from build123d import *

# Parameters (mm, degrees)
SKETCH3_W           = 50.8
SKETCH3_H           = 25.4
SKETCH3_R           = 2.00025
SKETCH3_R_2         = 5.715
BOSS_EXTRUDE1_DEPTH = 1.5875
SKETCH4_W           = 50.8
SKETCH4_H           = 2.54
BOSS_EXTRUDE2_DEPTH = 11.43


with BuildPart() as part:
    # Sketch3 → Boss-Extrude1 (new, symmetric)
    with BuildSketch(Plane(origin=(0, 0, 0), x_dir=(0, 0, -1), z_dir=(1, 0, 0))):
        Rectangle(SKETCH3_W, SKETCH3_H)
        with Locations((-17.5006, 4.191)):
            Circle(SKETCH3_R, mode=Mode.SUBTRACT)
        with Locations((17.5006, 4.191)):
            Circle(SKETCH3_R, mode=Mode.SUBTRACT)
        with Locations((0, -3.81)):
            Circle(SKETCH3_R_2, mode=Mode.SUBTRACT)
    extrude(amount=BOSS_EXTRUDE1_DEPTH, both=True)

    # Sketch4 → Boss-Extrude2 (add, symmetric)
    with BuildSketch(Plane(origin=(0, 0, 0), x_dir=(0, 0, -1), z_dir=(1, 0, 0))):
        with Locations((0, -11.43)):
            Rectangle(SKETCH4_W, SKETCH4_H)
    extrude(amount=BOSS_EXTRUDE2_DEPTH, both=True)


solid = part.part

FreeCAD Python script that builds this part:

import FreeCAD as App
import Part
import Sketcher
from FreeCAD import Vector
Q = App.Units.Quantity

doc = App.newDocument("Part")
body = doc.addObject("PartDesign::Body", "Body")

# Sketch on YZ plane
sketch1 = doc.addObject("Sketcher::SketchObject", "Sketch")
body.addObject(sketch1)
sketch1.AttachmentSupport = (doc.YZ_Plane, [""])
sketch1.MapMode = "FlatFace"
sketch1.addGeometry([
    Part.LineSegment(Vector(12.7, 25.4, 0), Vector(-12.7, 25.4, 0)),  # 0
    Part.LineSegment(Vector(-12.7, 25.4, 0), Vector(-12.7, -25.4, 0)),  # 1
    Part.LineSegment(Vector(-12.7, -25.4, 0), Vector(12.7, -25.4, 0)),  # 2
    Part.LineSegment(Vector(12.7, -25.4, 0), Vector(12.7, 25.4, 0)),  # 3
    Part.Circle(Vector(-3.81, 0, 0), Vector(0, 0, 1), 5.715),  # 4
    Part.Circle(Vector(4.191, 17.5006, 0), Vector(0, 0, 1), 2.00025),  # 5
    Part.Circle(Vector(4.191, -17.5006, 0), Vector(0, 0, 1), 2.00025),  # 6
], False)
sketch1.addConstraint([
    Sketcher.Constraint("Coincident", 0, 2, 1, 1),
    Sketcher.Constraint("Coincident", 1, 2, 2, 1),
    Sketcher.Constraint("Coincident", 2, 2, 3, 1),
    Sketcher.Constraint("Coincident", 3, 2, 0, 1),
    Sketcher.Constraint("Horizontal", 0),
    Sketcher.Constraint("Vertical", 1),
    Sketcher.Constraint("Horizontal", 2),
    Sketcher.Constraint("Vertical", 3),
    Sketcher.Constraint("Equal", 5, 6),
    Sketcher.Constraint("Symmetric", 0, 2, 2, 2, -1, 1),
    Sketcher.Constraint("Symmetric", 5, 3, 6, 3, -1),
    Sketcher.Constraint("PointOnObject", 4, 3, -1),
    Sketcher.Constraint("Diameter", 4, Q("0.45 in")),
    Sketcher.Constraint("DistanceX", 0, 2, 0, 1, Q("1 in")),
    Sketcher.Constraint("DistanceY", 1, 2, 1, 1, Q("2 in")),
    Sketcher.Constraint("Diameter", 5, Q("0.1575 in")),
    Sketcher.Constraint("DistanceX", 4, 3, -1, 1, Q("0.15 in")),
    Sketcher.Constraint("DistanceX", -1, 1, 5, 3, Q("0.165 in")),
    Sketcher.Constraint("DistanceY", -1, 1, 5, 3, Q("0.689 in")),
])
pad1 = doc.addObject("PartDesign::Pad", "Pad")
body.addObject(pad1)
pad1.Profile = sketch1
pad1.Length = Q("0.125 in")
pad1.Midplane = True

# Sketch on YZ plane
sketch2 = doc.addObject("Sketcher::SketchObject", "Sketch001")
body.addObject(sketch2)
sketch2.AttachmentSupport = (doc.YZ_Plane, [""])
sketch2.MapMode = "FlatFace"
sketch2.addGeometry([
    Part.LineSegment(Vector(-10.16, 25.4, 0), Vector(-12.7, 25.4, 0)),
    Part.LineSegment(Vector(-12.7, 25.4, 0), Vector(-12.7, -25.4, 0)),
    Part.LineSegment(Vector(-12.7, -25.4, 0), Vector(-10.16, -25.4, 0)),
    Part.LineSegment(Vector(-10.16, -25.4, 0), Vector(-10.16, 25.4, 0)),
], False)
sketch2.addConstraint([
    Sketcher.Constraint("Coincident", 0, 2, 1, 1),
    Sketcher.Constraint("Coincident", 1, 2, 2, 1),
    Sketcher.Constraint("Coincident", 2, 2, 3, 1),
    Sketcher.Constraint("Coincident", 3, 2, 0, 1),
    Sketcher.Constraint("Horizontal", 0),
    Sketcher.Constraint("Vertical", 1),
    Sketcher.Constraint("Horizontal", 2),
    Sketcher.Constraint("Vertical", 3),
    Sketcher.Constraint("DistanceY", 1, 2, 1, 1, Q("2 in")),
    Sketcher.Constraint("DistanceX", 0, 2, 0, 1, Q("0.1 in")),
    Sketcher.Constraint("DistanceY", -1, 1, 0, 2, Q("1 in")),
    Sketcher.Constraint("DistanceX", 0, 2, -1, 1, Q("0.5 in")),
])
pad2 = doc.addObject("PartDesign::Pad", "Pad001")
body.addObject(pad2)
pad2.Profile = sketch2
pad2.Length = Q("0.9 in")
pad2.Midplane = True

doc.recompute()
